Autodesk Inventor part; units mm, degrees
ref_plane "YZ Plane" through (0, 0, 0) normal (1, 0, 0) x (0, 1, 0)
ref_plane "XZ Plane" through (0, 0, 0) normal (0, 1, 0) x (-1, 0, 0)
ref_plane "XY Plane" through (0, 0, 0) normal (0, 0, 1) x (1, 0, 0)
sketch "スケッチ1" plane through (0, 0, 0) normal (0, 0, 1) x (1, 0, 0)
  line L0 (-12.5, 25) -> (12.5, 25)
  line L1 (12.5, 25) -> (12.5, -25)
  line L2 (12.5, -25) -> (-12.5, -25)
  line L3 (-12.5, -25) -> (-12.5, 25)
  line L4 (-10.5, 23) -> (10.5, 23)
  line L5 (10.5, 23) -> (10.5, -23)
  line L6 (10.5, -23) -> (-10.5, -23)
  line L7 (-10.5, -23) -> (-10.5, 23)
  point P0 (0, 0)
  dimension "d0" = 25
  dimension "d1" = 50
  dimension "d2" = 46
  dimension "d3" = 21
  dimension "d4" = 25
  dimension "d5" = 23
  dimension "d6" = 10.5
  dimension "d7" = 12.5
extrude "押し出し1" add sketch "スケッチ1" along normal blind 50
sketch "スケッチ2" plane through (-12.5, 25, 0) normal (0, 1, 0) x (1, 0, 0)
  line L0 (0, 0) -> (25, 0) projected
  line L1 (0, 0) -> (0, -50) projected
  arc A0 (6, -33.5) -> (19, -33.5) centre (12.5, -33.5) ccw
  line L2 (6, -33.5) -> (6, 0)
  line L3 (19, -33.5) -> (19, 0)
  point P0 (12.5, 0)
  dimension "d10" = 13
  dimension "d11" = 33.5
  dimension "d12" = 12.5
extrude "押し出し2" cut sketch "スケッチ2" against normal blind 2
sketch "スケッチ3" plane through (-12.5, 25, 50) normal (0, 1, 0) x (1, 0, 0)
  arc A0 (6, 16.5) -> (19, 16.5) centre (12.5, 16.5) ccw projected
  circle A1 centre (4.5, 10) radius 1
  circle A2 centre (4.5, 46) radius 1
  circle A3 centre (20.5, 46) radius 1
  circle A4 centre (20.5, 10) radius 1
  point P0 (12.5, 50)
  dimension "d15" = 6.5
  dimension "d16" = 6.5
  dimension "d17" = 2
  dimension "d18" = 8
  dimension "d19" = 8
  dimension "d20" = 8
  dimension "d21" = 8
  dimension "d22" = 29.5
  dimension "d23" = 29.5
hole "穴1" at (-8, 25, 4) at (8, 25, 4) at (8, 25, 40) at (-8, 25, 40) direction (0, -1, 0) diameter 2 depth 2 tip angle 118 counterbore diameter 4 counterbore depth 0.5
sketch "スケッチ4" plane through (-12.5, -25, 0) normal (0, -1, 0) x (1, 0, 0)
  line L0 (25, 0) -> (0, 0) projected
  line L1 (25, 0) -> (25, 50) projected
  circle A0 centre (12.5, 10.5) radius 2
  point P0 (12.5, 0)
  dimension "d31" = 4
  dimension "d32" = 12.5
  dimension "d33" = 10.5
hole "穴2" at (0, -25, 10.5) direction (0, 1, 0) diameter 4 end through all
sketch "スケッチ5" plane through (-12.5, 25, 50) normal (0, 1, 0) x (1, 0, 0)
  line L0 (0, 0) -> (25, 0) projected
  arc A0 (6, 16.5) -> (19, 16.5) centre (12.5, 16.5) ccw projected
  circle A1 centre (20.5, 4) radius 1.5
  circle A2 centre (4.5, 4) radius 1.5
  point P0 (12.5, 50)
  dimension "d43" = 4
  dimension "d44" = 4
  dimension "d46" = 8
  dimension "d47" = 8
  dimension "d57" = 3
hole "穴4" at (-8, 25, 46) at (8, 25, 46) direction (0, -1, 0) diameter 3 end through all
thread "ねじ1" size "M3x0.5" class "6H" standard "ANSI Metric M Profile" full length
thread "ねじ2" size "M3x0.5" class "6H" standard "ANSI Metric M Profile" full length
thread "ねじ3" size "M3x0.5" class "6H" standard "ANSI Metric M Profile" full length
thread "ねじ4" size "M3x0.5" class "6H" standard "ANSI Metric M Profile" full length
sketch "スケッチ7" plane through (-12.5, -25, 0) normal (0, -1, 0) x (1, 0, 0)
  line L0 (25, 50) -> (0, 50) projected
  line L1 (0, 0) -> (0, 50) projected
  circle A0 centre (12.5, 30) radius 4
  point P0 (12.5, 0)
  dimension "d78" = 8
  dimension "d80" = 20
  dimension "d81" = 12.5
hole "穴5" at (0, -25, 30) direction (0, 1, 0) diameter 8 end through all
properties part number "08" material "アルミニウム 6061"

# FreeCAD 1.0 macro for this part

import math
import FreeCAD as App
import Part
import Sketcher

V = App.Vector


def add_polygon(sketch, points):
    """Adds a closed chain of lines whose ends are joined by coincident constraints."""
    first, n = sketch.GeometryCount, len(points)
    for a, b in zip(points, points[1:] + points[:1]):
        sketch.addGeometry(Part.LineSegment(App.Vector(*a, 0), App.Vector(*b, 0)), False)
    for i in range(n):
        sketch.addConstraint(Sketcher.Constraint("Coincident", first + i, 2, first + (i + 1) % n, 1))

doc = App.newDocument("Part")
body = doc.addObject("PartDesign::Body", "Body")

sketch1 = body.newObject("Sketcher::SketchObject", "Sketch")
sketch1.AttachmentSupport = (doc.getObject("XY_Plane"), [""])
sketch1.MapMode = "FlatFace"
add_polygon(sketch1, [(12, 25), (-12, 25), (-12, -25), (12, -25)])
add_polygon(sketch1, [(-10, -23), (-10, 23), (10, 23), (10, -23)])
sketch1.addConstraint(Sketcher.Constraint("Horizontal", 0))
sketch1.addConstraint(Sketcher.Constraint("Vertical", 1))
sketch1.addConstraint(Sketcher.Constraint("Horizontal", 2))
sketch1.addConstraint(Sketcher.Constraint("Vertical", 3))
sketch1.addConstraint(Sketcher.Constraint("Vertical", 4))
sketch1.addConstraint(Sketcher.Constraint("Horizontal", 5))
sketch1.addConstraint(Sketcher.Constraint("Vertical", 6))
sketch1.addConstraint(Sketcher.Constraint("Horizontal", 7))
sketch1.addConstraint(Sketcher.Constraint("Symmetric", 0, 2, 2, 2, -1, 1))
sketch1.addConstraint(Sketcher.Constraint("Symmetric", 4, 2, 6, 2, -1, 1))
sketch1.addConstraint(Sketcher.Constraint("DistanceX", 0, 2, 0, 1, 25.0))
sketch1.addConstraint(Sketcher.Constraint("DistanceX", 5, 1, 5, 2, 21.0))
sketch1.addConstraint(Sketcher.Constraint("DistanceY", 1, 2, 1, 1, 50.0))
sketch1.addConstraint(Sketcher.Constraint("DistanceY", 4, 1, 4, 2, 46.0))
pad1 = body.newObject("PartDesign::Pad", "Pad")
pad1.Profile = sketch1
pad1.Length = 50

sketch2 = body.newObject("Sketcher::SketchObject", "Sketch001")
sketch2.AttachmentSupport = (doc.getObject("XZ_Plane"), [""])
sketch2.MapMode = "FlatFace"
sketch2.AttachmentOffset = App.Placement(V(0, 0, -25), App.Rotation())
sketch2.addGeometry(Part.LineSegment(V(6, 0, 0), V(-6, 0, 0)), False)
sketch2.addGeometry(Part.LineSegment(V(-6, 0, 0), V(-6, 34, 0)), False)
sketch2.addGeometry(Part.ArcOfCircle(Part.Circle(V(0, 34, 0), V(0, 0, 1), 6), math.radians(0), math.radians(180)), False)
sketch2.addGeometry(Part.LineSegment(V(6, 34, 0), V(6, 0, 0)), False)
sketch2.addConstraint(Sketcher.Constraint("Coincident", 0, 2, 1, 1))
sketch2.addConstraint(Sketcher.Constraint("Tangent", 1, 2, 2, 2))
sketch2.addConstraint(Sketcher.Constraint("Tangent", 2, 1, 3, 1))
sketch2.addConstraint(Sketcher.Constraint("Coincident", 3, 2, 0, 1))
sketch2.addConstraint(Sketcher.Constraint("Horizontal", 0))
sketch2.addConstraint(Sketcher.Constraint("Vertical", 1))
sketch2.addConstraint(Sketcher.Constraint("Vertical", 3))
sketch2.addConstraint(Sketcher.Constraint("Symmetric", 0, 2, 3, 2, -1, 1))
sketch2.addConstraint(Sketcher.Constraint("Radius", 2, 6.5))
sketch2.addConstraint(Sketcher.Constraint("DistanceY", 1, 1, 1, 2, 33.5))
pocket1 = body.newObject("PartDesign::Pocket", "Pocket")
pocket1.Profile = sketch2
pocket1.Length = 2
pocket1.Reversed = True

sketch3 = body.newObject("Sketcher::SketchObject", "Sketch002")
sketch3.AttachmentSupport = (doc.getObject("XZ_Plane"), [""])
sketch3.MapMode = "FlatFace"
sketch3.AttachmentOffset = App.Placement(V(0, 0, -25), App.Rotation())
sketch3.addGeometry(Part.Circle(V(-8, 4, 0), V(0, 0, 1), 1), False)
sketch3.addGeometry(Part.Circle(V(8, 4, 0), V(0, 0, 1), 1), False)
sketch3.addGeometry(Part.Circle(V(8, 40, 0), V(0, 0, 1), 1), False)
sketch3.addGeometry(Part.Circle(V(-8, 40, 0), V(0, 0, 1), 1), False)
sketch3.addConstraint(Sketcher.Constraint("Equal", 0, 1))
sketch3.addConstraint(Sketcher.Constraint("Equal", 1, 2))
sketch3.addConstraint(Sketcher.Constraint("Equal", 2, 3))
sketch3.addConstraint(Sketcher.Constraint("Symmetric", 0, 3, 1, 3, -2))
sketch3.addConstraint(Sketcher.Constraint("Symmetric", 2, 3, 3, 3, -2))
sketch3.addConstraint(Sketcher.Constraint("Vertical", 1, 3, 2, 3))
sketch3.addConstraint(Sketcher.Constraint("Diameter", 0, 2.0))
sketch3.addConstraint(Sketcher.Constraint("DistanceX", 0, 3, -1, 1, 8.0))
sketch3.addConstraint(Sketcher.Constraint("DistanceY", -1, 1, 0, 3, 4.0))
sketch3.addConstraint(Sketcher.Constraint("DistanceY", -1, 1, 2, 3, 40.0))
doc.recompute()
hole = body.newObject("PartDesign::Hole", "Hole")
hole.Profile = sketch3
hole.ThreadType = "None"
hole.Diameter = 2
hole.DepthType = "Dimension"
hole.Depth = 2
hole.DrillPoint = "Angled"
hole.DrillPointAngle = 118
hole.HoleCutType = "Counterbore"
hole.HoleCutDiameter = 4
hole.HoleCutDepth = 0.5
hole.Reversed = True

sketch4 = body.newObject("Sketcher::SketchObject", "Sketch003")
sketch4.AttachmentSupport = (doc.getObject("XZ_Plane"), [""])
sketch4.MapMode = "FlatFace"
sketch4.AttachmentOffset = App.Placement(V(0, 0, 25), App.Rotation())
sketch4.addGeometry(Part.Circle(V(0, 10.5, 0), V(0, 0, 1), 2), False)
sketch4.addConstraint(Sketcher.Constraint("PointOnObject", 0, 3, -2))
sketch4.addConstraint(Sketcher.Constraint("Diameter", 0, 4.0))
sketch4.addConstraint(Sketcher.Constraint("DistanceY", -1, 1, 0, 3, 10.5))
doc.recompute()
hole2 = body.newObject("PartDesign::Hole", "Hole001")
hole2.Profile = sketch4
hole2.ThreadType = "None"
hole2.Diameter = 4
hole2.DepthType = "ThroughAll"

sketch5 = body.newObject("Sketcher::SketchObject", "Sketch004")
sketch5.AttachmentSupport = (doc.getObject("XZ_Plane"), [""])
sketch5.MapMode = "FlatFace"
sketch5.AttachmentOffset = App.Placement(V(0, 0, -25), App.Rotation())
sketch5.addGeometry(Part.Circle(V(-8, 46, 0), V(0, 0, 1), 1.5), False)
sketch5.addGeometry(Part.Circle(V(8, 46, 0), V(0, 0, 1), 1.5), False)
sketch5.addConstraint(Sketcher.Constraint("Equal", 0, 1))
sketch5.addConstraint(Sketcher.Constraint("Symmetric", 0, 3, 1, 3, -2))
sketch5.addConstraint(Sketcher.Constraint("Diameter", 0, 3.0))
sketch5.addConstraint(Sketcher.Constraint("DistanceX", 0, 3, -1, 1, 8.0))
sketch5.addConstraint(Sketcher.Constraint("DistanceY", -1, 1, 0, 3, 46.0))
doc.recompute()
hole3 = body.newObject("PartDesign::Hole", "Hole002")
hole3.Profile = sketch5
hole3.ThreadType = "None"
hole3.Diameter = 3
hole3.DepthType = "ThroughAll"
hole3.Reversed = True

sketch6 = body.newObject("Sketcher::SketchObject", "Sketch005")
sketch6.AttachmentSupport = (doc.getObject("XZ_Plane"), [""])
sketch6.MapMode = "FlatFace"
sketch6.AttachmentOffset = App.Placement(V(0, 0, 25), App.Rotation())
sketch6.addGeometry(Part.Circle(V(0, 30, 0), V(0, 0, 1), 4), False)
sketch6.addConstraint(Sketcher.Constraint("PointOnObject", 0, 3, -2))
sketch6.addConstraint(Sketcher.Constraint("Diameter", 0, 8.0))
sketch6.addConstraint(Sketcher.Constraint("DistanceY", -1, 1, 0, 3, 30.0))
doc.recompute()
hole4 = body.newObject("PartDesign::Hole", "Hole003")
hole4.Profile = sketch6
hole4.ThreadType = "None"
hole4.Diameter = 8
hole4.DepthType = "ThroughAll"

doc.recompute()
